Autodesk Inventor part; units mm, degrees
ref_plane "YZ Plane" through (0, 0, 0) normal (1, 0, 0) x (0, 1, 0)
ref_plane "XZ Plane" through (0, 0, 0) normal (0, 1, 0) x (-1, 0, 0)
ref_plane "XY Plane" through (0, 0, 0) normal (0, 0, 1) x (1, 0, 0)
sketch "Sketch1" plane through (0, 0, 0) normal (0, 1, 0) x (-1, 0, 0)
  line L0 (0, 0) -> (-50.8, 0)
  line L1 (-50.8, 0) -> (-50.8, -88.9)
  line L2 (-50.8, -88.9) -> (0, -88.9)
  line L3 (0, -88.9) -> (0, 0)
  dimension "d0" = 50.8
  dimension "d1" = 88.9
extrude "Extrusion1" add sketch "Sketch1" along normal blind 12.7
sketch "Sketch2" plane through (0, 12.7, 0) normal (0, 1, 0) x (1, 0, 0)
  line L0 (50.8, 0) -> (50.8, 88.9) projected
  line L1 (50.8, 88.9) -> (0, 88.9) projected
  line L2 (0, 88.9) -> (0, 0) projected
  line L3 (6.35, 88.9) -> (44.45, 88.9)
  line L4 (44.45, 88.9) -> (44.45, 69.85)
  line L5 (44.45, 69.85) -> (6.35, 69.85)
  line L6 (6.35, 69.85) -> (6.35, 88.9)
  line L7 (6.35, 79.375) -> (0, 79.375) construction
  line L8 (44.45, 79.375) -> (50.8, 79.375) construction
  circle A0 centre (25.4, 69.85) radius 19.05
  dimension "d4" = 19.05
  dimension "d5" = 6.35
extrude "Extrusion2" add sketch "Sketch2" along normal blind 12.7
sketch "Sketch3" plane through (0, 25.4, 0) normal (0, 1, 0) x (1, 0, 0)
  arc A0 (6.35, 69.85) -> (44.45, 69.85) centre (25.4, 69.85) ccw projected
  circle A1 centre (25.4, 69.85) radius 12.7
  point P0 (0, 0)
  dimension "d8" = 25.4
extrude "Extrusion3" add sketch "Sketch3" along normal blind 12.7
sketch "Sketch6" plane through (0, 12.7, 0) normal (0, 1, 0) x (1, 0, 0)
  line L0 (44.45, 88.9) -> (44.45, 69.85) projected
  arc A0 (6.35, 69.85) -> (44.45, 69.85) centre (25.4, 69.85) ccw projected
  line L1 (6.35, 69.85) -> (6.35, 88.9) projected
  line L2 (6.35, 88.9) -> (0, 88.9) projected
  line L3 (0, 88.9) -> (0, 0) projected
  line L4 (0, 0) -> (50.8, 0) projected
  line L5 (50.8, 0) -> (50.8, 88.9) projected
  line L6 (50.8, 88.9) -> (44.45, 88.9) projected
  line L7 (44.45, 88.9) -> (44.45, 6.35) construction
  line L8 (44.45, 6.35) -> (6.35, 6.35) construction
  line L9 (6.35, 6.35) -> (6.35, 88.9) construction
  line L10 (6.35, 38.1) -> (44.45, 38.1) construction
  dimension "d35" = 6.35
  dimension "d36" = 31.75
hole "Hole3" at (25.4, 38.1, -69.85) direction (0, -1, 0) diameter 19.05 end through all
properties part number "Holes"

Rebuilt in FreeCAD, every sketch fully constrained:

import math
import FreeCAD as App
import Part
import Sketcher
from FreeCAD import Vector
Q = App.Units.Quantity


def add_polygon(sketch, points):
    """Adds a closed chain of lines whose ends are joined by coincident constraints."""
    first, n = sketch.GeometryCount, len(points)
    for a, b in zip(points, points[1:] + points[:1]):
        sketch.addGeometry(Part.LineSegment(App.Vector(*a, 0), App.Vector(*b, 0)), False)
    for i in range(n):
        sketch.addConstraint(Sketcher.Constraint("Coincident", first + i, 2, first + (i + 1) % n, 1))

doc = App.newDocument("Part")
params = doc.addObject("Spreadsheet::Sheet", "Params")
for row, (alias, value) in enumerate([
    ("sketch1_width", "2 in"),
    ("sketch1_height", "3.5 in"),
    ("pad1_length", "0.5 in"),
    ("sketch2_radius", "0.75 in"),
    ("sketch2_height", "0.75 in"),
    ("pad2_length", "0.5 in"),
    ("sketch3_diameter", "1 in"),
    ("pad3_length", "0.5 in"),
    ("sketch4_diameter", "0.75 in"),
    ("hole_diameter", "0.75 in"),
], start=1):
    params.set(f"A{row}", alias)
    params.set(f"B{row}", "=" + value)
    params.setAlias(f"B{row}", alias)

body = doc.addObject("PartDesign::Body", "Body")

# Sketch on XZ plane
sketch1 = body.newObject("Sketcher::SketchObject", "Sketch")
sketch1.AttachmentSupport = (doc.getObject("XZ_Plane"), [""])
sketch1.MapMode = "FlatFace"
add_polygon(sketch1, [(0, -89), (0, 0), (51, 0), (51, -89)])  # lines 0-3
sketch1.addConstraint([
    Sketcher.Constraint("Vertical", 0),
    Sketcher.Constraint("Horizontal", 1),
    Sketcher.Constraint("Vertical", 2),
    Sketcher.Constraint("Horizontal", 3),
    Sketcher.Constraint("Coincident", 0, 2, -1, 1),
    Sketcher.Constraint("DistanceX", 1, 1, 1, 2, Q("2 in")),
    Sketcher.Constraint("DistanceY", 0, 1, 0, 2, Q("3.5 in")),
])
sketch1.setExpression("Constraints[9]", "Params.sketch1_width")
sketch1.setExpression("Constraints[10]", "Params.sketch1_height")
pad1 = body.newObject("PartDesign::Pad", "Pad")
pad1.Profile = sketch1
pad1.setExpression("Length", "Params.pad1_length")
pad1.Reversed = True

# Sketch on XZ plane
sketch2 = body.newObject("Sketcher::SketchObject", "Sketch001")
sketch2.AttachmentSupport = (doc.getObject("XZ_Plane"), [""])
sketch2.MapMode = "FlatFace"
sketch2.AttachmentOffset = App.Placement(Vector(0, 0, -0.5 * 25.4), App.Rotation())
sketch2.addGeometry([
    Part.LineSegment(Vector(44, -70, 0), Vector(44, -89, 0)),
    Part.LineSegment(Vector(44, -89, 0), Vector(6, -89, 0)),
    Part.LineSegment(Vector(6, -89, 0), Vector(6, -70, 0)),
    Part.ArcOfCircle(Part.Circle(Vector(25, -70, 0), Vector(0, 0, 1), 19), math.radians(0), math.radians(180)),
], False)
sketch2.addConstraint([
    Sketcher.Constraint("Coincident", 0, 2, 1, 1),
    Sketcher.Constraint("Coincident", 1, 2, 2, 1),
    Sketcher.Constraint("Tangent", 2, 2, 3, 2),
    Sketcher.Constraint("Tangent", 3, 1, 0, 1),
    Sketcher.Constraint("Vertical", 0),
    Sketcher.Constraint("Horizontal", 1),
    Sketcher.Constraint("Vertical", 2),
    Sketcher.Constraint("Radius", 3, Q("0.75 in")),
    Sketcher.Constraint("DistanceY", 0, 2, 0, 1, Q("0.75 in")),
    Sketcher.Constraint("DistanceX", -1, 1, 1, 2, Q("0.25 in")),
    Sketcher.Constraint("DistanceY", 0, 2, -1, 1, Q("3.5 in")),
])
sketch2.setExpression("Constraints[7]", "Params.sketch2_radius")
sketch2.setExpression("Constraints[8]", "Params.sketch2_height")
pad2 = body.newObject("PartDesign::Pad", "Pad001")
pad2.Profile = sketch2
pad2.setExpression("Length", "Params.pad2_length")
pad2.Reversed = True

# Sketch on XZ plane
sketch3 = body.newObject("Sketcher::SketchObject", "Sketch002")
sketch3.AttachmentSupport = (doc.getObject("XZ_Plane"), [""])
sketch3.MapMode = "FlatFace"
sketch3.AttachmentOffset = App.Placement(Vector(0, 0, -1 * 25.4), App.Rotation())
sketch3.addGeometry(Part.Circle(Vector(25, -70, 0), Vector(0, 0, 1), 13), False)
sketch3.addConstraint([
    Sketcher.Constraint("Diameter", 0, Q("1 in")),
    Sketcher.Constraint("DistanceX", -1, 1, 0, 3, Q("1 in")),
    Sketcher.Constraint("DistanceY", 0, 3, -1, 1, Q("2.75 in")),
])
sketch3.setExpression("Constraints[0]", "Params.sketch3_diameter")
pad3 = body.newObject("PartDesign::Pad", "Pad002")
pad3.Profile = sketch3
pad3.setExpression("Length", "Params.pad3_length")
pad3.Reversed = True

# Sketch on XZ plane
sketch4 = body.newObject("Sketcher::SketchObject", "Sketch003")
sketch4.AttachmentSupport = (doc.getObject("XZ_Plane"), [""])
sketch4.MapMode = "FlatFace"
sketch4.AttachmentOffset = App.Placement(Vector(0, 0, -1.5 * 25.4), App.Rotation())
sketch4.addGeometry(Part.Circle(Vector(25, -70, 0), Vector(0, 0, 1), 10), False)
sketch4.addConstraint([
    Sketcher.Constraint("Diameter", 0, Q("0.75 in")),
    Sketcher.Constraint("DistanceX", -1, 1, 0, 3, Q("1 in")),
    Sketcher.Constraint("DistanceY", 0, 3, -1, 1, Q("2.75 in")),
])
sketch4.setExpression("Constraints[0]", "Params.sketch4_diameter")
doc.recompute()
hole = body.newObject("PartDesign::Hole", "Hole")
hole.Profile = sketch4
hole.ThreadType = "None"
hole.setExpression("Diameter", "Params.hole_diameter")
hole.DepthType = "ThroughAll"
hole.Reversed = True

doc.recompute()
